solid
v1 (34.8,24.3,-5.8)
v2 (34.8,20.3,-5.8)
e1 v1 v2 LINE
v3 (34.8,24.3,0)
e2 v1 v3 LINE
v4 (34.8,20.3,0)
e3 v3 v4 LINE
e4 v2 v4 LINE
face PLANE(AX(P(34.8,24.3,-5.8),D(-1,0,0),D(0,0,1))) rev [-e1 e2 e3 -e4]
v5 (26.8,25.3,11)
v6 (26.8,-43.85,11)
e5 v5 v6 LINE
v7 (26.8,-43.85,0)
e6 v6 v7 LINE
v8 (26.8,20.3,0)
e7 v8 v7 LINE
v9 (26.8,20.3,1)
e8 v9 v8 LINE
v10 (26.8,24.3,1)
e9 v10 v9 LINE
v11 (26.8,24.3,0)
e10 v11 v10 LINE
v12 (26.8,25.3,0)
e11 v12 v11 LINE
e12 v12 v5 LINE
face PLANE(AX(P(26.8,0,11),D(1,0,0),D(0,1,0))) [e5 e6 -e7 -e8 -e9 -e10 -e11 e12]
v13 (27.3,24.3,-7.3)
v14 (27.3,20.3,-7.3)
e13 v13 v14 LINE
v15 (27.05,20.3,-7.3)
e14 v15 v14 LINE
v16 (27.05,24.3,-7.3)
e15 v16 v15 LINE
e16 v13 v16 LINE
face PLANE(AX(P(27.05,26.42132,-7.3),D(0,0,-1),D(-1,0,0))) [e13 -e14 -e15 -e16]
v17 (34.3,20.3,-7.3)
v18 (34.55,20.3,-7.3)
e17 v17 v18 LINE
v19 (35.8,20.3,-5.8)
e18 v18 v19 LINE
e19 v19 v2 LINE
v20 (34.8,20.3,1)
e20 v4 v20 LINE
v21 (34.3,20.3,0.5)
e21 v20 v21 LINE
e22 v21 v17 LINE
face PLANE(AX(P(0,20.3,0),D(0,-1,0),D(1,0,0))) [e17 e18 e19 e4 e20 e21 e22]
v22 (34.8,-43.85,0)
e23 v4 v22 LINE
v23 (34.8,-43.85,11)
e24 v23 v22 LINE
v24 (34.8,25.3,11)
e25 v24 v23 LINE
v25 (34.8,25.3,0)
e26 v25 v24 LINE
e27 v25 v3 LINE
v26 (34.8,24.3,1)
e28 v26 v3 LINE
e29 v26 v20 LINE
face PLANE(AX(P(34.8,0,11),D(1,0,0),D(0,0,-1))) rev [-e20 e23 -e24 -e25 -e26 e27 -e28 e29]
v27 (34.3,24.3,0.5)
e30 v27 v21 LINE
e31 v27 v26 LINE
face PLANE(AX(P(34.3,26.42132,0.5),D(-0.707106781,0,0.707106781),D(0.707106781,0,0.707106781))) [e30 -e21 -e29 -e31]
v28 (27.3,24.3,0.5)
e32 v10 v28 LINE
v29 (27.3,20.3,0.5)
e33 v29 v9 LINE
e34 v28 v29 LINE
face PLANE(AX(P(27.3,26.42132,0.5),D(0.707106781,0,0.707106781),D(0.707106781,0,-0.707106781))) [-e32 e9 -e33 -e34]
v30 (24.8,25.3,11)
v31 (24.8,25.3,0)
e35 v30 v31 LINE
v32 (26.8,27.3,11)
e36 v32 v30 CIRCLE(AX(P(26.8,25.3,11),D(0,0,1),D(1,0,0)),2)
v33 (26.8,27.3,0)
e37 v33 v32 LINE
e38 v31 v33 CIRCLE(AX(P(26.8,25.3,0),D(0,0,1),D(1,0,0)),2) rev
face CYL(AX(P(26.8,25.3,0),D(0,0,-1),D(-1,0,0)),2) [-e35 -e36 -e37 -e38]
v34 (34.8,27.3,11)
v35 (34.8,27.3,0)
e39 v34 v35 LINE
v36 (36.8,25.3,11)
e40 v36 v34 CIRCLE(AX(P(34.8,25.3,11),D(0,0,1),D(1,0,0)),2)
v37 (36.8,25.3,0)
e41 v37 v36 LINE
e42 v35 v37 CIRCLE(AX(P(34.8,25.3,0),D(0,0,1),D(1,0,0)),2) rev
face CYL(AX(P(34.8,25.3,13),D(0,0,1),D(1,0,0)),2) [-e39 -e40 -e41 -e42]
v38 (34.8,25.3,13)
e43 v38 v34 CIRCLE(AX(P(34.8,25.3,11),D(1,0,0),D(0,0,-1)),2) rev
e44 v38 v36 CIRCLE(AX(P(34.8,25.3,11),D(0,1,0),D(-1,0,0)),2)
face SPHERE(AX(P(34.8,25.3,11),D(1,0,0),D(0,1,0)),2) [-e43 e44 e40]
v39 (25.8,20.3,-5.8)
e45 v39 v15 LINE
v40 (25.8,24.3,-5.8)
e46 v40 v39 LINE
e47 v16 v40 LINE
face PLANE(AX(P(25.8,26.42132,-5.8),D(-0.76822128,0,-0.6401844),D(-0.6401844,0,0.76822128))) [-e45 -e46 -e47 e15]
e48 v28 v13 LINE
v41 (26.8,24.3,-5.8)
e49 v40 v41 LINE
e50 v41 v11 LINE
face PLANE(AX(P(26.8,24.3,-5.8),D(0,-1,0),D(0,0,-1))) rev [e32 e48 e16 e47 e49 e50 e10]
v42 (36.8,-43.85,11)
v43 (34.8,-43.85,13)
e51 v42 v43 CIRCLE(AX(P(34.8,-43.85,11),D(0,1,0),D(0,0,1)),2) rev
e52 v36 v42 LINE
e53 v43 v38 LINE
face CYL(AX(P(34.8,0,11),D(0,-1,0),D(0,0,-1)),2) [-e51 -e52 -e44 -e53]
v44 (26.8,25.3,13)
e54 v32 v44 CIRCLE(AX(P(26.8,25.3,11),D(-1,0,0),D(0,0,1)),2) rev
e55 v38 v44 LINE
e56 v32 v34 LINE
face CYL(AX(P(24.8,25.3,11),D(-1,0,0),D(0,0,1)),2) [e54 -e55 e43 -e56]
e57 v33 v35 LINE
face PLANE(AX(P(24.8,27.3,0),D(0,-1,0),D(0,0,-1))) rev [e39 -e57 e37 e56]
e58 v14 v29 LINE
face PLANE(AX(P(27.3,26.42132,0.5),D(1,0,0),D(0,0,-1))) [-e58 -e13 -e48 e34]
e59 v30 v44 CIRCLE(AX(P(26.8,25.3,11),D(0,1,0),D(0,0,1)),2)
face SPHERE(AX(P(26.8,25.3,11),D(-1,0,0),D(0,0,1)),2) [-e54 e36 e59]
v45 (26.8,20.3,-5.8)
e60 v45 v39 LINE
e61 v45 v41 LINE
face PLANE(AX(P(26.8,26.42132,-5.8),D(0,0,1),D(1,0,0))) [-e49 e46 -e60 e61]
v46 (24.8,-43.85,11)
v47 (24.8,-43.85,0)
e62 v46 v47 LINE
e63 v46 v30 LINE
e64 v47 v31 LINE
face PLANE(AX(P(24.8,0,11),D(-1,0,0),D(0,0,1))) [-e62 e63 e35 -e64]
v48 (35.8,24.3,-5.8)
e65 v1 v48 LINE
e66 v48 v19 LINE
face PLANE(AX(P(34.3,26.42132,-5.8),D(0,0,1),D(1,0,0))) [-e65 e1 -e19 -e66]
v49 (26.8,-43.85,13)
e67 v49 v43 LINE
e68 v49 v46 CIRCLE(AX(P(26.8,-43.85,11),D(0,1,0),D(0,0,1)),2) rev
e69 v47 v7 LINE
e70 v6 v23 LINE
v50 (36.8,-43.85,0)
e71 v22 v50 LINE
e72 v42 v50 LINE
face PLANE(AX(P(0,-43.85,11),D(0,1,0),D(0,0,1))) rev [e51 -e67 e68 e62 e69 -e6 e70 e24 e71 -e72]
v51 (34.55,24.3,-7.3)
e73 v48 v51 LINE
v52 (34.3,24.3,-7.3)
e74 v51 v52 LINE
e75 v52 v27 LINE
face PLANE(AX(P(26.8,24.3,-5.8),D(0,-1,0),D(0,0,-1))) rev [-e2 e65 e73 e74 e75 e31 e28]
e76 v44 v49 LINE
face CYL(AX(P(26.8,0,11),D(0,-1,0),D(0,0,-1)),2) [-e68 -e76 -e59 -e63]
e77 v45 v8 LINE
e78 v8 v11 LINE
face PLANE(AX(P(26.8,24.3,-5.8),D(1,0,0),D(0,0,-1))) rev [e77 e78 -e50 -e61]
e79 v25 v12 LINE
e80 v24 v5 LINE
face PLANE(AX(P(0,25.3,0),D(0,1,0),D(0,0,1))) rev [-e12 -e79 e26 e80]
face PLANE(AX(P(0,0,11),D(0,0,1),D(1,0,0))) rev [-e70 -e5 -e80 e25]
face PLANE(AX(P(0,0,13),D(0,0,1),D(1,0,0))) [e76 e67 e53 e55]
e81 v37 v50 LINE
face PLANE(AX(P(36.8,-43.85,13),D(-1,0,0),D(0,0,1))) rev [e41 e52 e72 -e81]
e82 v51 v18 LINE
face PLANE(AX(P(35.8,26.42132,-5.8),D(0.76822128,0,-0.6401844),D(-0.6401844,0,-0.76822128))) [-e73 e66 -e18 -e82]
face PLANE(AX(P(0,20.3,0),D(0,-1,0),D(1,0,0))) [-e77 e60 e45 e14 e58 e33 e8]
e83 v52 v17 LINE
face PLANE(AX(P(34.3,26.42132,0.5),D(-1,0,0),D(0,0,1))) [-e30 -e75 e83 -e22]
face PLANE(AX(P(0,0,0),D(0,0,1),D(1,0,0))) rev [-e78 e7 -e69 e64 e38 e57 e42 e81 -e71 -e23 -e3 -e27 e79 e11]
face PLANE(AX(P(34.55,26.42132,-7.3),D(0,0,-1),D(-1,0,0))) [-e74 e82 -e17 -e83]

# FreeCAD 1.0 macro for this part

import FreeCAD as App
import Part
import Sketcher
Q = App.Units.Quantity


def edges_at(feature, points):
    """Names of the edges that pass closest to the given points."""
    edges = feature.Shape.Edges
    near = lambda p: min(range(len(edges)), key=lambda i: edges[i].distToShape(Part.Vertex(*p))[0])
    return sorted({f"Edge{near(p) + 1}" for p in points})

doc = App.newDocument("Part")
body = doc.addObject("PartDesign::Body", "Body")
body.AllowCompound = True

# Sketch on XY plane
sketch1 = doc.addObject("Sketcher::SketchObject", "Sketch")
body.addObject(sketch1)
sketch1.AttachmentSupport = (doc.XY_Plane, [""])
sketch1.MapMode = "FlatFace"
sketch1.addGeometry([
    Part.LineSegment(App.Vector(24.8, 14.3, 0), App.Vector(-2, 14.3, 0)),  # 0
    Part.LineSegment(App.Vector(-2, 14.3, 0), App.Vector(-2, -2, 0)),  # 1
    Part.LineSegment(App.Vector(-2, -2, 0), App.Vector(24.8, -2, 0)),  # 2
    Part.LineSegment(App.Vector(24.8, -2, 0), App.Vector(24.8, 3.15, 0)),  # 3
    Part.LineSegment(App.Vector(24.8, 3.15, 0), App.Vector(22.8, 3.15, 0)),  # 4
    Part.LineSegment(App.Vector(22.8, 3.15, 0), App.Vector(22.8, 0, 0)),  # 5
    Part.LineSegment(App.Vector(22.8, 0, 0), App.Vector(0, 0, 0)),  # 6
    Part.LineSegment(App.Vector(0, 0, 0), App.Vector(0, 12.3, 0)),  # 7
    Part.LineSegment(App.Vector(0, 12.3, 0), App.Vector(22.8, 12.3, 0)),  # 8
    Part.LineSegment(App.Vector(22.8, 12.3, 0), App.Vector(22.8, 9.15, 0)),  # 9
    Part.LineSegment(App.Vector(22.8, 9.15, 0), App.Vector(24.8, 9.15, 0)),  # 10
    Part.LineSegment(App.Vector(24.8, 9.15, 0), App.Vector(24.8, 14.3, 0)),  # 11
], False)
sketch1.addConstraint([
    Sketcher.Constraint("Coincident", 0, 2, 1, 1),
    Sketcher.Constraint("Coincident", 1, 2, 2, 1),
    Sketcher.Constraint("Coincident", 2, 2, 3, 1),
    Sketcher.Constraint("Coincident", 3, 2, 4, 1),
    Sketcher.Constraint("Coincident", 4, 2, 5, 1),
    Sketcher.Constraint("Coincident", 5, 2, 6, 1),
    Sketcher.Constraint("Coincident", 6, 2, 7, 1),
    Sketcher.Constraint("Coincident", 7, 2, 8, 1),
    Sketcher.Constraint("Coincident", 8, 2, 9, 1),
    Sketcher.Constraint("Coincident", 9, 2, 10, 1),
    Sketcher.Constraint("Coincident", 10, 2, 11, 1),
    Sketcher.Constraint("Coincident", 11, 2, 0, 1),
    Sketcher.Constraint("Horizontal", 0),
    Sketcher.Constraint("Vertical", 1),
    Sketcher.Constraint("Horizontal", 2),
    Sketcher.Constraint("Vertical", 3),
    Sketcher.Constraint("Horizontal", 4),
    Sketcher.Constraint("Vertical", 5),
    Sketcher.Constraint("Horizontal", 6),
    Sketcher.Constraint("Vertical", 7),
    Sketcher.Constraint("Horizontal", 8),
    Sketcher.Constraint("Vertical", 9),
    Sketcher.Constraint("Horizontal", 10),
    Sketcher.Constraint("Vertical", 11),
    Sketcher.Constraint("Coincident", 6, 2, -1, 1),
    Sketcher.Constraint("Vertical", 5, 2, 8, 2),
    Sketcher.Constraint("Vertical", 3, 2, 10, 2),
    Sketcher.Constraint("Equal", 5, 9),
    Sketcher.Constraint("Equal", 3, 11),
    Sketcher.Constraint("DistanceX", 4, 2, 4, 1, Q("2 mm")),
    Sketcher.Constraint("DistanceX", 0, 2, 0, 1, Q("26.8 mm")),
    Sketcher.Constraint("DistanceX", 6, 2, 6, 1, Q("22.8 mm")),
    Sketcher.Constraint("DistanceY", 1, 2, 1, 1, Q("16.3 mm")),
    Sketcher.Constraint("DistanceY", 7, 1, 7, 2, Q("12.3 mm")),
    Sketcher.Constraint("DistanceY", 4, 2, 9, 2, Q("6 mm")),
])
pad1 = doc.addObject("PartDesign::Pad", "Pad")
body.addObject(pad1)
pad1.Profile = sketch1
pad1.Length = 11

# Sketch on XY plane
sketch2 = doc.addObject("Sketcher::SketchObject", "Sketch001")
body.addObject(sketch2)
sketch2.AttachmentSupport = (doc.XY_Plane, [""])
sketch2.MapMode = "FlatFace"
sketch2.AttachmentOffset = App.Placement(App.Vector(0, 0, 11), App.Rotation())
sketch2.addGeometry([
    Part.LineSegment(App.Vector(24.8, -2, 0), App.Vector(24.8, 14.3, 0)),
    Part.LineSegment(App.Vector(24.8, 14.3, 0), App.Vector(-2, 14.3, 0)),
    Part.LineSegment(App.Vector(-2, 14.3, 0), App.Vector(-2, -2, 0)),
    Part.LineSegment(App.Vector(-2, -2, 0), App.Vector(24.8, -2, 0)),
], False)
sketch2.addConstraint([
    Sketcher.Constraint("Coincident", 0, 2, 1, 1),
    Sketcher.Constraint("Coincident", 1, 2, 2, 1),
    Sketcher.Constraint("Coincident", 2, 2, 3, 1),
    Sketcher.Constraint("Coincident", 3, 2, 0, 1),
    Sketcher.Constraint("Vertical", 0),
    Sketcher.Constraint("Horizontal", 1),
    Sketcher.Constraint("Vertical", 2),
    Sketcher.Constraint("Horizontal", 3),
    Sketcher.Constraint("DistanceX", 1, 2, 1, 1, Q("26.8 mm")),
    Sketcher.Constraint("DistanceY", 0, 1, 0, 2, Q("16.3 mm")),
    Sketcher.Constraint("DistanceX", 1, 2, -1, 1, Q("2 mm")),
    Sketcher.Constraint("DistanceY", 2, 2, -1, 1, Q("2 mm")),
])
pad2 = doc.addObject("PartDesign::Pad", "Pad001")
body.addObject(pad2)
pad2.Profile = sketch2
pad2.Length = 2

# Sketch on XY plane
sketch3 = doc.addObject("Sketcher::SketchObject", "Sketch002")
body.addObject(sketch3)
sketch3.AttachmentSupport = (doc.XY_Plane, [""])
sketch3.MapMode = "FlatFace"
sketch3.addGeometry([
    Part.LineSegment(App.Vector(24.8, 3.15, 0), App.Vector(24.8, -43.85, 0)),  # 0
    Part.LineSegment(App.Vector(24.8, -43.85, 0), App.Vector(26.8, -43.85, 0)),  # 1
    Part.LineSegment(App.Vector(26.8, -43.85, 0), App.Vector(26.8, 3.15, 0)),  # 2
    Part.LineSegment(App.Vector(26.8, 3.15, 0), App.Vector(24.8, 3.15, 0)),  # 3
    Part.LineSegment(App.Vector(24.8, 56.15, 0), App.Vector(24.8, 9.15, 0)),  # 4
    Part.LineSegment(App.Vector(24.8, 9.15, 0), App.Vector(26.8, 9.15, 0)),  # 5
    Part.LineSegment(App.Vector(26.8, 9.15, 0), App.Vector(26.8, 56.15, 0)),  # 6
    Part.LineSegment(App.Vector(26.8, 56.15, 0), App.Vector(24.8, 56.15, 0)),  # 7
    Part.LineSegment(App.Vector(34.8, 56.15, 0), App.Vector(34.8, -43.85, 0)),  # 8
    Part.LineSegment(App.Vector(34.8, -43.85, 0), App.Vector(36.8, -43.85, 0)),  # 9
    Part.LineSegment(App.Vector(36.8, -43.85, 0), App.Vector(36.8, 56.15, 0)),  # 10
    Part.LineSegment(App.Vector(36.8, 56.15, 0), App.Vector(34.8, 56.15, 0)),  # 11
], False)
sketch3.addConstraint([
    Sketcher.Constraint("Coincident", 0, 2, 1, 1),
    Sketcher.Constraint("Coincident", 1, 2, 2, 1),
    Sketcher.Constraint("Coincident", 2, 2, 3, 1),
    Sketcher.Constraint("Coincident", 3, 2, 0, 1),
    Sketcher.Constraint("Coincident", 4, 2, 5, 1),
    Sketcher.Constraint("Coincident", 5, 2, 6, 1),
    Sketcher.Constraint("Coincident", 6, 2, 7, 1),
    Sketcher.Constraint("Coincident", 7, 2, 4, 1),
    Sketcher.Constraint("Coincident", 8, 2, 9, 1),
    Sketcher.Constraint("Coincident", 9, 2, 10, 1),
    Sketcher.Constraint("Coincident", 10, 2, 11, 1),
    Sketcher.Constraint("Coincident", 11, 2, 8, 1),
    Sketcher.Constraint("Vertical", 0),
    Sketcher.Constraint("Horizontal", 1),
    Sketcher.Constraint("Vertical", 2),
    Sketcher.Constraint("Horizontal", 3),
    Sketcher.Constraint("Vertical", 4),
    Sketcher.Constraint("Horizontal", 5),
    Sketcher.Constraint("Vertical", 6),
    Sketcher.Constraint("Horizontal", 7),
    Sketcher.Constraint("Vertical", 8),
    Sketcher.Constraint("Horizontal", 9),
    Sketcher.Constraint("Vertical", 10),
    Sketcher.Constraint("Horizontal", 11),
    Sketcher.Constraint("Horizontal", 1, 2, 8, 2),
    Sketcher.Constraint("Horizontal", 7, 2, 10, 2),
    Sketcher.Constraint("Vertical", 3, 2, 4, 2),
    Sketcher.Constraint("Vertical", 2, 2, 5, 2),
    Sketcher.Constraint("Equal", 7, 9),
    Sketcher.Constraint("Equal", 2, 4),
    Sketcher.Constraint("DistanceX", 1, 1, 1, 2, Q("2 mm")),
    Sketcher.Constraint("DistanceY", 0, 2, 0, 1, Q("47 mm")),
    Sketcher.Constraint("DistanceY", 8, 2, 8, 1, Q("100 mm")),
    Sketcher.Constraint("DistanceX", 1, 2, 8, 2, Q("8 mm")),
    Sketcher.Constraint("DistanceX", -1, 1, 0, 2, Q("24.8 mm")),
    Sketcher.Constraint("DistanceY", 0, 2, -1, 1, Q("43.85 mm")),
])
pad3 = doc.addObject("PartDesign::Pad", "Pad002")
body.addObject(pad3)
pad3.Profile = sketch3
pad3.Length = 11

# Sketch on XY plane
sketch4 = doc.addObject("Sketcher::SketchObject", "Sketch003")
body.addObject(sketch4)
sketch4.AttachmentSupport = (doc.XY_Plane, [""])
sketch4.MapMode = "FlatFace"
sketch4.AttachmentOffset = App.Placement(App.Vector(0, 0, 11), App.Rotation())
sketch4.addGeometry([
    Part.LineSegment(App.Vector(24.8, 56.15, 0), App.Vector(24.8, -43.85, 0)),
    Part.LineSegment(App.Vector(24.8, -43.85, 0), App.Vector(36.8, -43.85, 0)),
    Part.LineSegment(App.Vector(36.8, -43.85, 0), App.Vector(36.8, 56.15, 0)),
    Part.LineSegment(App.Vector(36.8, 56.15, 0), App.Vector(24.8, 56.15, 0)),
], False)
sketch4.addConstraint([
    Sketcher.Constraint("Coincident", 0, 2, 1, 1),
    Sketcher.Constraint("Coincident", 1, 2, 2, 1),
    Sketcher.Constraint("Coincident", 2, 2, 3, 1),
    Sketcher.Constraint("Coincident", 3, 2, 0, 1),
    Sketcher.Constraint("Vertical", 0),
    Sketcher.Constraint("Horizontal", 1),
    Sketcher.Constraint("Vertical", 2),
    Sketcher.Constraint("Horizontal", 3),
    Sketcher.Constraint("DistanceX", 1, 1, 1, 2, Q("12 mm")),
    Sketcher.Constraint("DistanceY", 0, 2, 0, 1, Q("100 mm")),
    Sketcher.Constraint("DistanceX", -1, 1, 0, 2, Q("24.8 mm")),
    Sketcher.Constraint("DistanceY", 0, 2, -1, 1, Q("43.85 mm")),
])
pad4 = doc.addObject("PartDesign::Pad", "Pad003")
body.addObject(pad4)
pad4.Profile = sketch4
pad4.Length = 2

# Sketch on XY plane
sketch5 = doc.addObject("Sketcher::SketchObject", "Sketch004")
body.addObject(sketch5)
sketch5.AttachmentSupport = (doc.XY_Plane, [""])
sketch5.MapMode = "FlatFace"
sketch5.AttachmentOffset = App.Placement(App.Vector(0, 0, 13), App.Rotation())
sketch5.addGeometry([
    Part.LineSegment(App.Vector(24.8, 56.15, 0), App.Vector(24.8, 27.3, 0)),
    Part.LineSegment(App.Vector(24.8, 27.3, 0), App.Vector(36.8, 27.3, 0)),
    Part.LineSegment(App.Vector(36.8, 27.3, 0), App.Vector(36.8, 56.15, 0)),
    Part.LineSegment(App.Vector(36.8, 56.15, 0), App.Vector(24.8, 56.15, 0)),
], False)
sketch5.addConstraint([
    Sketcher.Constraint("Coincident", 0, 2, 1, 1),
    Sketcher.Constraint("Coincident", 1, 2, 2, 1),
    Sketcher.Constraint("Coincident", 2, 2, 3, 1),
    Sketcher.Constraint("Coincident", 3, 2, 0, 1),
    Sketcher.Constraint("Vertical", 0),
    Sketcher.Constraint("Horizontal", 1),
    Sketcher.Constraint("Vertical", 2),
    Sketcher.Constraint("Horizontal", 3),
    Sketcher.Constraint("DistanceX", 1, 1, 1, 2, Q("12 mm")),
    Sketcher.Constraint("DistanceY", 0, 2, 0, 1, Q("28.85 mm")),
    Sketcher.Constraint("DistanceX", -1, 1, 0, 2, Q("24.8 mm")),
    Sketcher.Constraint("DistanceY", -1, 1, 0, 2, Q("27.3 mm")),
])
pocket1 = doc.addObject("PartDesign::Pocket", "Pocket")
body.addObject(pocket1)
pocket1.Profile = sketch5
pocket1.Type = "ThroughAll"

# Sketch on XZ plane
sketch6 = doc.addObject("Sketcher::SketchObject", "Sketch005")
body.addObject(sketch6)
sketch6.AttachmentSupport = (doc.XZ_Plane, [""])
sketch6.MapMode = "FlatFace"
sketch6.AttachmentOffset = App.Placement(App.Vector(0, 0, -27.3), App.Rotation())
sketch6.addGeometry([
    Part.LineSegment(App.Vector(24.8, 0, 0), App.Vector(24.8, 13, 0)),
    Part.LineSegment(App.Vector(24.8, 13, 0), App.Vector(36.8, 13, 0)),
    Part.LineSegment(App.Vector(36.8, 13, 0), App.Vector(36.8, 0, 0)),
    Part.LineSegment(App.Vector(36.8, 0, 0), App.Vector(24.8, 0, 0)),
], False)
sketch6.addConstraint([
    Sketcher.Constraint("Coincident", 0, 2, 1, 1),
    Sketcher.Constraint("Coincident", 1, 2, 2, 1),
    Sketcher.Constraint("Coincident", 2, 2, 3, 1),
    Sketcher.Constraint("Coincident", 3, 2, 0, 1),
    Sketcher.Constraint("Vertical", 0),
    Sketcher.Constraint("Horizontal", 1),
    Sketcher.Constraint("Vertical", 2),
    Sketcher.Constraint("Horizontal", 3),
    Sketcher.Constraint("PointOnObject", 2, 2, -1),
    Sketcher.Constraint("DistanceX", 1, 1, 1, 2, Q("12 mm")),
    Sketcher.Constraint("DistanceY", 0, 1, 0, 2, Q("13 mm")),
    Sketcher.Constraint("DistanceX", -1, 1, 0, 2, Q("24.8 mm")),
])
pad5 = doc.addObject("PartDesign::Pad", "Pad004")
body.addObject(pad5)
pad5.Profile = sketch6
pad5.Length = 2

# Sketch on XY plane
sketch7 = doc.addObject("Sketcher::SketchObject", "Sketch006")
body.addObject(sketch7)
sketch7.AttachmentSupport = (doc.XY_Plane, [""])
sketch7.MapMode = "FlatFace"
sketch7.AttachmentOffset = App.Placement(App.Vector(0, 0, 13), App.Rotation())
sketch7.addGeometry([
    Part.LineSegment(App.Vector(26.8, 25.3, 0), App.Vector(26.8, 14.3, 0)),
    Part.LineSegment(App.Vector(26.8, 14.3, 0), App.Vector(34.8, 14.3, 0)),
    Part.LineSegment(App.Vector(34.8, 14.3, 0), App.Vector(34.8, 25.3, 0)),
    Part.LineSegment(App.Vector(34.8, 25.3, 0), App.Vector(26.8, 25.3, 0)),
], False)
sketch7.addConstraint([
    Sketcher.Constraint("Coincident", 0, 2, 1, 1),
    Sketcher.Constraint("Coincident", 1, 2, 2, 1),
    Sketcher.Constraint("Coincident", 2, 2, 3, 1),
    Sketcher.Constraint("Coincident", 3, 2, 0, 1),
    Sketcher.Constraint("Vertical", 0),
    Sketcher.Constraint("Horizontal", 1),
    Sketcher.Constraint("Vertical", 2),
    Sketcher.Constraint("Horizontal", 3),
    Sketcher.Constraint("DistanceX", 1, 1, 1, 2, Q("8 mm")),
    Sketcher.Constraint("DistanceY", 0, 2, 0, 1, Q("11 mm")),
    Sketcher.Constraint("DistanceX", -1, 1, 0, 2, Q("26.8 mm")),
    Sketcher.Constraint("DistanceY", -1, 1, 0, 2, Q("14.3 mm")),
])
pocket2 = doc.addObject("PartDesign::Pocket", "Pocket001")
body.addObject(pocket2)
pocket2.Profile = sketch7
pocket2.Length = 2

# Sketch on YZ plane
sketch8 = doc.addObject("Sketcher::SketchObject", "Sketch007")
body.addObject(sketch8)
sketch8.AttachmentSupport = (doc.YZ_Plane, [""])
sketch8.MapMode = "FlatFace"
sketch8.AttachmentOffset = App.Placement(App.Vector(0, 0, -2), App.Rotation())
sketch8.addGeometry([
    Part.LineSegment(App.Vector(14.3, 0, 0), App.Vector(-2, 0, 0)),
    Part.LineSegment(App.Vector(-2, 0, 0), App.Vector(-2, 13, 0)),
    Part.LineSegment(App.Vector(-2, 13, 0), App.Vector(14.3, 13, 0)),
    Part.LineSegment(App.Vector(14.3, 13, 0), App.Vector(14.3, 0, 0)),
], False)
sketch8.addConstraint([
    Sketcher.Constraint("Coincident", 0, 2, 1, 1),
    Sketcher.Constraint("Coincident", 1, 2, 2, 1),
    Sketcher.Constraint("Coincident", 2, 2, 3, 1),
    Sketcher.Constraint("Coincident", 3, 2, 0, 1),
    Sketcher.Constraint("Horizontal", 0),
    Sketcher.Constraint("Vertical", 1),
    Sketcher.Constraint("Horizontal", 2),
    Sketcher.Constraint("Vertical", 3),
    Sketcher.Constraint("PointOnObject", 0, 2, -1),
    Sketcher.Constraint("DistanceY", 1, 1, 1, 2, Q("13 mm")),
    Sketcher.Constraint("DistanceX", 0, 2, 0, 1, Q("16.3 mm")),
    Sketcher.Constraint("DistanceX", 0, 2, -1, 1, Q("2 mm")),
])
pocket3 = doc.addObject("PartDesign::Pocket", "Pocket002")
body.addObject(pocket3)
pocket3.Profile = sketch8
pocket3.Length = 26.8
pocket3.Reversed = True

# Sketch on YZ plane
sketch9 = doc.addObject("Sketcher::SketchObject", "Sketch008")
body.addObject(sketch9)
sketch9.AttachmentSupport = (doc.YZ_Plane, [""])
sketch9.MapMode = "FlatFace"
sketch9.AttachmentOffset = App.Placement(App.Vector(0, 0, 24.8), App.Rotation())
sketch9.addGeometry([
    Part.LineSegment(App.Vector(9.15, 0, 0), App.Vector(3.15, 0, 0)),
    Part.LineSegment(App.Vector(3.15, 0, 0), App.Vector(3.15, 11, 0)),
    Part.LineSegment(App.Vector(3.15, 11, 0), App.Vector(9.15, 11, 0)),
    Part.LineSegment(App.Vector(9.15, 11, 0), App.Vector(9.15, 0, 0)),
], False)
sketch9.addConstraint([
    Sketcher.Constraint("Coincident", 0, 2, 1, 1),
    Sketcher.Constraint("Coincident", 1, 2, 2, 1),
    Sketcher.Constraint("Coincident", 2, 2, 3, 1),
    Sketcher.Constraint("Coincident", 3, 2, 0, 1),
    Sketcher.Constraint("Horizontal", 0),
    Sketcher.Constraint("Vertical", 1),
    Sketcher.Constraint("Horizontal", 2),
    Sketcher.Constraint("Vertical", 3),
    Sketcher.Constraint("PointOnObject", 0, 2, -1),
    Sketcher.Constraint("DistanceX", 0, 2, 0, 1, Q("6 mm")),
    Sketcher.Constraint("DistanceY", 1, 1, 1, 2, Q("11 mm")),
    Sketcher.Constraint("DistanceX", -1, 1, 0, 2, Q("3.15 mm")),
])
pad6 = doc.addObject("PartDesign::Pad", "Pad005")
body.addObject(pad6)
pad6.Profile = sketch9
pad6.Length = 2

# Sketch on XY plane
sketch10 = doc.addObject("Sketcher::SketchObject", "Sketch009")
body.addObject(sketch10)
sketch10.AttachmentSupport = (doc.XY_Plane, [""])
sketch10.MapMode = "FlatFace"
sketch10.AttachmentOffset = App.Placement(App.Vector(0, 0, 13), App.Rotation())
sketch10.addGeometry([
    Part.LineSegment(App.Vector(26.8, 25.3, 0), App.Vector(26.8, 14.3, 0)),
    Part.LineSegment(App.Vector(26.8, 14.3, 0), App.Vector(34.8, 14.3, 0)),
    Part.LineSegment(App.Vector(34.8, 14.3, 0), App.Vector(34.8, 25.3, 0)),
    Part.LineSegment(App.Vector(34.8, 25.3, 0), App.Vector(26.8, 25.3, 0)),
], False)
sketch10.addConstraint([
    Sketcher.Constraint("Coincident", 0, 2, 1, 1),
    Sketcher.Constraint("Coincident", 1, 2, 2, 1),
    Sketcher.Constraint("Coincident", 2, 2, 3, 1),
    Sketcher.Constraint("Coincident", 3, 2, 0, 1),
    Sketcher.Constraint("Vertical", 0),
    Sketcher.Constraint("Horizontal", 1),
    Sketcher.Constraint("Vertical", 2),
    Sketcher.Constraint("Horizontal", 3),
    Sketcher.Constraint("DistanceX", 1, 1, 1, 2, Q("8 mm")),
    Sketcher.Constraint("DistanceY", 0, 2, 0, 1, Q("11 mm")),
    Sketcher.Constraint("DistanceX", -1, 1, 0, 2, Q("26.8 mm")),
    Sketcher.Constraint("DistanceY", -1, 1, 0, 2, Q("14.3 mm")),
])
pad7 = doc.addObject("PartDesign::Pad", "Pad006")
body.addObject(pad7)
pad7.Profile = sketch10
pad7.Length = 2
pad7.Reversed = True
doc.recompute()

fillet = doc.addObject("PartDesign::Fillet", "Fillet")
body.addObject(fillet)
fillet.Base = (pad7, edges_at(pad7, [
    (36.8, 27.3, 6.5),
    (24.8, 27.3, 6.5),
    (30.8, 27.3, 13),
    (24.8, -8.275, 13),
    (36.8, -8.275, 13),
]))
fillet.Radius = 2
body2 = doc.addObject("PartDesign::Body", "Body001")

# Sketch on XY plane
sketch11 = doc.addObject("Sketcher::SketchObject", "Sketch010")
body2.addObject(sketch11)
sketch11.AttachmentSupport = (doc.getObject("XY_Plane001"), [""])
sketch11.MapMode = "FlatFace"
sketch11.addGeometry([
    Part.LineSegment(App.Vector(34.8, 24.3, 0), App.Vector(34.8, 20.3, 0)),
    Part.LineSegment(App.Vector(34.8, 20.3, 0), App.Vector(34.3, 20.3, 0)),
    Part.LineSegment(App.Vector(34.3, 20.3, 0), App.Vector(34.3, 24.3, 0)),
    Part.LineSegment(App.Vector(34.3, 24.3, 0), App.Vector(34.8, 24.3, 0)),
], False)
sketch11.addConstraint([
    Sketcher.Constraint("Coincident", 0, 2, 1, 1),
    Sketcher.Constraint("Coincident", 1, 2, 2, 1),
    Sketcher.Constraint("Coincident", 2, 2, 3, 1),
    Sketcher.Constraint("Coincident", 3, 2, 0, 1),
    Sketcher.Constraint("Vertical", 0),
    Sketcher.Constraint("Horizontal", 1),
    Sketcher.Constraint("Vertical", 2),
    Sketcher.Constraint("Horizontal", 3),
    Sketcher.Constraint("DistanceY", 0, 2, 0, 1, Q("4 mm")),
    Sketcher.Constraint("DistanceX", 1, 2, 1, 1, Q("0.5 mm")),
    Sketcher.Constraint("DistanceX", -1, 1, 0, 2, Q("34.8 mm")),
    Sketcher.Constraint("DistanceY", -1, 1, 0, 2, Q("20.3 mm")),
])
pad8 = doc.addObject("PartDesign::Pad", "Pad007")
body2.addObject(pad8)
pad8.Profile = sketch11
pad8.Length = 5.8
pad8.Reversed = True
body3 = doc.addObject("PartDesign::Body", "Body002")

# Sketch on XY plane
sketch12 = doc.addObject("Sketcher::SketchObject", "Sketch011")
body3.addObject(sketch12)
sketch12.AttachmentSupport = (doc.getObject("XY_Plane002"), [""])
sketch12.MapMode = "FlatFace"
sketch12.addGeometry([
    Part.LineSegment(App.Vector(27.3, 24.3, 0), App.Vector(27.3, 20.3, 0)),
    Part.LineSegment(App.Vector(27.3, 20.3, 0), App.Vector(26.8, 20.3, 0)),
    Part.LineSegment(App.Vector(26.8, 20.3, 0), App.Vector(26.8, 24.3, 0)),
    Part.LineSegment(App.Vector(26.8, 24.3, 0), App.Vector(27.3, 24.3, 0)),
], False)
sketch12.addConstraint([
    Sketcher.Constraint("Coincident", 0, 2, 1, 1),
    Sketcher.Constraint("Coincident", 1, 2, 2, 1),
    Sketcher.Constraint("Coincident", 2, 2, 3, 1),
    Sketcher.Constraint("Coincident", 3, 2, 0, 1),
    Sketcher.Constraint("Vertical", 0),
    Sketcher.Constraint("Horizontal", 1),
    Sketcher.Constraint("Vertical", 2),
    Sketcher.Constraint("Horizontal", 3),
    Sketcher.Constraint("DistanceY", 0, 2, 0, 1, Q("4 mm")),
    Sketcher.Constraint("DistanceX", 1, 2, 1, 1, Q("0.5 mm")),
    Sketcher.Constraint("DistanceX", -1, 1, 0, 2, Q("27.3 mm")),
    Sketcher.Constraint("DistanceY", -1, 1, 0, 2, Q("20.3 mm")),
])
pad9 = doc.addObject("PartDesign::Pad", "Pad008")
body3.addObject(pad9)
pad9.Profile = sketch12
pad9.Length = 5.8
pad9.Reversed = True
body.AllowCompound = True
doc.recompute()

boolean = doc.addObject("PartDesign::Boolean", "Boolean")
body.addObject(boolean)
boolean.Type = "Fuse"
boolean.addObjects([body2])
doc.recompute()

boolean2 = doc.addObject("PartDesign::Boolean", "Boolean001")
body.addObject(boolean2)
boolean2.Type = "Fuse"
boolean2.addObjects([body3])

# Sketch on XZ plane
sketch13 = doc.addObject("Sketcher::SketchObject", "Sketch012")
body.addObject(sketch13)
sketch13.AttachmentSupport = (doc.XZ_Plane, [""])
sketch13.MapMode = "FlatFace"
sketch13.AttachmentOffset = App.Placement(App.Vector(0, 0, -20.3), App.Rotation())
sketch13.addGeometry([
    Part.LineSegment(App.Vector(27.3, 0.5, 0), App.Vector(26.8, 1, 0)),  # 0
    Part.LineSegment(App.Vector(26.8, 1, 0), App.Vector(26.8, 0, 0)),  # 1
    Part.LineSegment(App.Vector(26.8, 0, 0), App.Vector(27.3, 0, 0)),  # 2
    Part.LineSegment(App.Vector(27.3, 0, 0), App.Vector(27.3, 0.5, 0)),  # 3
    Part.LineSegment(App.Vector(25.8, -5.8, 0), App.Vector(27.05, -7.3, 0)),  # 4
    Part.LineSegment(App.Vector(27.05, -7.3, 0), App.Vector(27.3, -7.3, 0)),  # 5
    Part.LineSegment(App.Vector(27.3, -7.3, 0), App.Vector(27.3, -5.8, 0)),  # 6
    Part.LineSegment(App.Vector(27.3, -5.8, 0), App.Vector(25.8, -5.8, 0)),  # 7
    Part.LineSegment(App.Vector(35.8, -5.8, 0), App.Vector(34.3, -5.8, 0)),  # 8
    Part.LineSegment(App.Vector(34.3, -5.8, 0), App.Vector(34.3, -7.3, 0)),  # 9
    Part.LineSegment(App.Vector(34.3, -7.3, 0), App.Vector(34.55, -7.3, 0)),  # 10
    Part.LineSegment(App.Vector(34.55, -7.3, 0), App.Vector(35.8, -5.8, 0)),  # 11
    Part.LineSegment(App.Vector(34.3, 0, 0), App.Vector(34.8, 0, 0)),  # 12
    Part.LineSegment(App.Vector(34.8, 0, 0), App.Vector(34.8, 1, 0)),  # 13
    Part.LineSegment(App.Vector(34.8, 1, 0), App.Vector(34.3, 0.5, 0)),  # 14
    Part.LineSegment(App.Vector(34.3, 0.5, 0), App.Vector(34.3, 0, 0)),  # 15
], False)
sketch13.addConstraint([
    Sketcher.Constraint("Coincident", 0, 2, 1, 1),
    Sketcher.Constraint("Coincident", 1, 2, 2, 1),
    Sketcher.Constraint("Coincident", 2, 2, 3, 1),
    Sketcher.Constraint("Coincident", 3, 2, 0, 1),
    Sketcher.Constraint("Coincident", 4, 2, 5, 1),
    Sketcher.Constraint("Coincident", 5, 2, 6, 1),
    Sketcher.Constraint("Coincident", 6, 2, 7, 1),
    Sketcher.Constraint("Coincident", 7, 2, 4, 1),
    Sketcher.Constraint("Coincident", 8, 2, 9, 1),
    Sketcher.Constraint("Coincident", 9, 2, 10, 1),
    Sketcher.Constraint("Coincident", 10, 2, 11, 1),
    Sketcher.Constraint("Coincident", 11, 2, 8, 1),
    Sketcher.Constraint("Coincident", 12, 2, 13, 1),
    Sketcher.Constraint("Coincident", 13, 2, 14, 1),
    Sketcher.Constraint("Coincident", 14, 2, 15, 1),
    Sketcher.Constraint("Coincident", 15, 2, 12, 1),
    Sketcher.Constraint("Vertical", 1),
    Sketcher.Constraint("Horizontal", 2),
    Sketcher.Constraint("Vertical", 3),
    Sketcher.Constraint("Horizontal", 5),
    Sketcher.Constraint("Vertical", 6),
    Sketcher.Constraint("Horizontal", 7),
    Sketcher.Constraint("Horizontal", 8),
    Sketcher.Constraint("Vertical", 9),
    Sketcher.Constraint("Horizontal", 10),
    Sketcher.Constraint("Horizontal", 12),
    Sketcher.Constraint("Vertical", 13),
    Sketcher.Constraint("Vertical", 15),
    Sketcher.Constraint("PointOnObject", 1, 2, -1),
    Sketcher.Constraint("PointOnObject", 12, 2, -1),
    Sketcher.Constraint("Perpendicular", 0, 14),
    Sketcher.Constraint("Horizontal", 7, 2, 8, 2),
    Sketcher.Constraint("Horizontal", 5, 2, 9, 2),
    Sketcher.Constraint("Horizontal", 0, 2, 13, 2),
    Sketcher.Constraint("Horizontal", 3, 2, 14, 2),
    Sketcher.Constraint("Vertical", 3, 2, 5, 2),
    Sketcher.Constraint("Vertical", 9, 2, 14, 2),
    Sketcher.Constraint("Equal", 7, 8),
    Sketcher.Constraint("Equal", 5, 10),
    Sketcher.Constraint("Equal", 2, 12),
    Sketcher.Constraint("Equal", 12, 3),
    Sketcher.Constraint("Equal", 8, 6),
    Sketcher.Constraint("DistanceY", 1, 2, 1, 1, Q("1 mm")),
    Sketcher.Constraint("DistanceX", 7, 2, 7, 1, Q("1.5 mm")),
    Sketcher.Constraint("DistanceX", 6, 2, 8, 2, Q("7 mm")),
    Sketcher.Constraint("DistanceX", 5, 1, 5, 2, Q("0.25 mm")),
    Sketcher.Constraint("DistanceX", -1, 1, 0, 2, Q("26.8 mm")),
    Sketcher.Constraint("DistanceY", 4, 2, -1, 1, Q("7.3 mm")),
])
pad10 = doc.addObject("PartDesign::Pad", "Pad009")
body.addObject(pad10)
pad10.Profile = sketch13
pad10.Length = 4
pad10.Reversed = True

doc.recompute()
